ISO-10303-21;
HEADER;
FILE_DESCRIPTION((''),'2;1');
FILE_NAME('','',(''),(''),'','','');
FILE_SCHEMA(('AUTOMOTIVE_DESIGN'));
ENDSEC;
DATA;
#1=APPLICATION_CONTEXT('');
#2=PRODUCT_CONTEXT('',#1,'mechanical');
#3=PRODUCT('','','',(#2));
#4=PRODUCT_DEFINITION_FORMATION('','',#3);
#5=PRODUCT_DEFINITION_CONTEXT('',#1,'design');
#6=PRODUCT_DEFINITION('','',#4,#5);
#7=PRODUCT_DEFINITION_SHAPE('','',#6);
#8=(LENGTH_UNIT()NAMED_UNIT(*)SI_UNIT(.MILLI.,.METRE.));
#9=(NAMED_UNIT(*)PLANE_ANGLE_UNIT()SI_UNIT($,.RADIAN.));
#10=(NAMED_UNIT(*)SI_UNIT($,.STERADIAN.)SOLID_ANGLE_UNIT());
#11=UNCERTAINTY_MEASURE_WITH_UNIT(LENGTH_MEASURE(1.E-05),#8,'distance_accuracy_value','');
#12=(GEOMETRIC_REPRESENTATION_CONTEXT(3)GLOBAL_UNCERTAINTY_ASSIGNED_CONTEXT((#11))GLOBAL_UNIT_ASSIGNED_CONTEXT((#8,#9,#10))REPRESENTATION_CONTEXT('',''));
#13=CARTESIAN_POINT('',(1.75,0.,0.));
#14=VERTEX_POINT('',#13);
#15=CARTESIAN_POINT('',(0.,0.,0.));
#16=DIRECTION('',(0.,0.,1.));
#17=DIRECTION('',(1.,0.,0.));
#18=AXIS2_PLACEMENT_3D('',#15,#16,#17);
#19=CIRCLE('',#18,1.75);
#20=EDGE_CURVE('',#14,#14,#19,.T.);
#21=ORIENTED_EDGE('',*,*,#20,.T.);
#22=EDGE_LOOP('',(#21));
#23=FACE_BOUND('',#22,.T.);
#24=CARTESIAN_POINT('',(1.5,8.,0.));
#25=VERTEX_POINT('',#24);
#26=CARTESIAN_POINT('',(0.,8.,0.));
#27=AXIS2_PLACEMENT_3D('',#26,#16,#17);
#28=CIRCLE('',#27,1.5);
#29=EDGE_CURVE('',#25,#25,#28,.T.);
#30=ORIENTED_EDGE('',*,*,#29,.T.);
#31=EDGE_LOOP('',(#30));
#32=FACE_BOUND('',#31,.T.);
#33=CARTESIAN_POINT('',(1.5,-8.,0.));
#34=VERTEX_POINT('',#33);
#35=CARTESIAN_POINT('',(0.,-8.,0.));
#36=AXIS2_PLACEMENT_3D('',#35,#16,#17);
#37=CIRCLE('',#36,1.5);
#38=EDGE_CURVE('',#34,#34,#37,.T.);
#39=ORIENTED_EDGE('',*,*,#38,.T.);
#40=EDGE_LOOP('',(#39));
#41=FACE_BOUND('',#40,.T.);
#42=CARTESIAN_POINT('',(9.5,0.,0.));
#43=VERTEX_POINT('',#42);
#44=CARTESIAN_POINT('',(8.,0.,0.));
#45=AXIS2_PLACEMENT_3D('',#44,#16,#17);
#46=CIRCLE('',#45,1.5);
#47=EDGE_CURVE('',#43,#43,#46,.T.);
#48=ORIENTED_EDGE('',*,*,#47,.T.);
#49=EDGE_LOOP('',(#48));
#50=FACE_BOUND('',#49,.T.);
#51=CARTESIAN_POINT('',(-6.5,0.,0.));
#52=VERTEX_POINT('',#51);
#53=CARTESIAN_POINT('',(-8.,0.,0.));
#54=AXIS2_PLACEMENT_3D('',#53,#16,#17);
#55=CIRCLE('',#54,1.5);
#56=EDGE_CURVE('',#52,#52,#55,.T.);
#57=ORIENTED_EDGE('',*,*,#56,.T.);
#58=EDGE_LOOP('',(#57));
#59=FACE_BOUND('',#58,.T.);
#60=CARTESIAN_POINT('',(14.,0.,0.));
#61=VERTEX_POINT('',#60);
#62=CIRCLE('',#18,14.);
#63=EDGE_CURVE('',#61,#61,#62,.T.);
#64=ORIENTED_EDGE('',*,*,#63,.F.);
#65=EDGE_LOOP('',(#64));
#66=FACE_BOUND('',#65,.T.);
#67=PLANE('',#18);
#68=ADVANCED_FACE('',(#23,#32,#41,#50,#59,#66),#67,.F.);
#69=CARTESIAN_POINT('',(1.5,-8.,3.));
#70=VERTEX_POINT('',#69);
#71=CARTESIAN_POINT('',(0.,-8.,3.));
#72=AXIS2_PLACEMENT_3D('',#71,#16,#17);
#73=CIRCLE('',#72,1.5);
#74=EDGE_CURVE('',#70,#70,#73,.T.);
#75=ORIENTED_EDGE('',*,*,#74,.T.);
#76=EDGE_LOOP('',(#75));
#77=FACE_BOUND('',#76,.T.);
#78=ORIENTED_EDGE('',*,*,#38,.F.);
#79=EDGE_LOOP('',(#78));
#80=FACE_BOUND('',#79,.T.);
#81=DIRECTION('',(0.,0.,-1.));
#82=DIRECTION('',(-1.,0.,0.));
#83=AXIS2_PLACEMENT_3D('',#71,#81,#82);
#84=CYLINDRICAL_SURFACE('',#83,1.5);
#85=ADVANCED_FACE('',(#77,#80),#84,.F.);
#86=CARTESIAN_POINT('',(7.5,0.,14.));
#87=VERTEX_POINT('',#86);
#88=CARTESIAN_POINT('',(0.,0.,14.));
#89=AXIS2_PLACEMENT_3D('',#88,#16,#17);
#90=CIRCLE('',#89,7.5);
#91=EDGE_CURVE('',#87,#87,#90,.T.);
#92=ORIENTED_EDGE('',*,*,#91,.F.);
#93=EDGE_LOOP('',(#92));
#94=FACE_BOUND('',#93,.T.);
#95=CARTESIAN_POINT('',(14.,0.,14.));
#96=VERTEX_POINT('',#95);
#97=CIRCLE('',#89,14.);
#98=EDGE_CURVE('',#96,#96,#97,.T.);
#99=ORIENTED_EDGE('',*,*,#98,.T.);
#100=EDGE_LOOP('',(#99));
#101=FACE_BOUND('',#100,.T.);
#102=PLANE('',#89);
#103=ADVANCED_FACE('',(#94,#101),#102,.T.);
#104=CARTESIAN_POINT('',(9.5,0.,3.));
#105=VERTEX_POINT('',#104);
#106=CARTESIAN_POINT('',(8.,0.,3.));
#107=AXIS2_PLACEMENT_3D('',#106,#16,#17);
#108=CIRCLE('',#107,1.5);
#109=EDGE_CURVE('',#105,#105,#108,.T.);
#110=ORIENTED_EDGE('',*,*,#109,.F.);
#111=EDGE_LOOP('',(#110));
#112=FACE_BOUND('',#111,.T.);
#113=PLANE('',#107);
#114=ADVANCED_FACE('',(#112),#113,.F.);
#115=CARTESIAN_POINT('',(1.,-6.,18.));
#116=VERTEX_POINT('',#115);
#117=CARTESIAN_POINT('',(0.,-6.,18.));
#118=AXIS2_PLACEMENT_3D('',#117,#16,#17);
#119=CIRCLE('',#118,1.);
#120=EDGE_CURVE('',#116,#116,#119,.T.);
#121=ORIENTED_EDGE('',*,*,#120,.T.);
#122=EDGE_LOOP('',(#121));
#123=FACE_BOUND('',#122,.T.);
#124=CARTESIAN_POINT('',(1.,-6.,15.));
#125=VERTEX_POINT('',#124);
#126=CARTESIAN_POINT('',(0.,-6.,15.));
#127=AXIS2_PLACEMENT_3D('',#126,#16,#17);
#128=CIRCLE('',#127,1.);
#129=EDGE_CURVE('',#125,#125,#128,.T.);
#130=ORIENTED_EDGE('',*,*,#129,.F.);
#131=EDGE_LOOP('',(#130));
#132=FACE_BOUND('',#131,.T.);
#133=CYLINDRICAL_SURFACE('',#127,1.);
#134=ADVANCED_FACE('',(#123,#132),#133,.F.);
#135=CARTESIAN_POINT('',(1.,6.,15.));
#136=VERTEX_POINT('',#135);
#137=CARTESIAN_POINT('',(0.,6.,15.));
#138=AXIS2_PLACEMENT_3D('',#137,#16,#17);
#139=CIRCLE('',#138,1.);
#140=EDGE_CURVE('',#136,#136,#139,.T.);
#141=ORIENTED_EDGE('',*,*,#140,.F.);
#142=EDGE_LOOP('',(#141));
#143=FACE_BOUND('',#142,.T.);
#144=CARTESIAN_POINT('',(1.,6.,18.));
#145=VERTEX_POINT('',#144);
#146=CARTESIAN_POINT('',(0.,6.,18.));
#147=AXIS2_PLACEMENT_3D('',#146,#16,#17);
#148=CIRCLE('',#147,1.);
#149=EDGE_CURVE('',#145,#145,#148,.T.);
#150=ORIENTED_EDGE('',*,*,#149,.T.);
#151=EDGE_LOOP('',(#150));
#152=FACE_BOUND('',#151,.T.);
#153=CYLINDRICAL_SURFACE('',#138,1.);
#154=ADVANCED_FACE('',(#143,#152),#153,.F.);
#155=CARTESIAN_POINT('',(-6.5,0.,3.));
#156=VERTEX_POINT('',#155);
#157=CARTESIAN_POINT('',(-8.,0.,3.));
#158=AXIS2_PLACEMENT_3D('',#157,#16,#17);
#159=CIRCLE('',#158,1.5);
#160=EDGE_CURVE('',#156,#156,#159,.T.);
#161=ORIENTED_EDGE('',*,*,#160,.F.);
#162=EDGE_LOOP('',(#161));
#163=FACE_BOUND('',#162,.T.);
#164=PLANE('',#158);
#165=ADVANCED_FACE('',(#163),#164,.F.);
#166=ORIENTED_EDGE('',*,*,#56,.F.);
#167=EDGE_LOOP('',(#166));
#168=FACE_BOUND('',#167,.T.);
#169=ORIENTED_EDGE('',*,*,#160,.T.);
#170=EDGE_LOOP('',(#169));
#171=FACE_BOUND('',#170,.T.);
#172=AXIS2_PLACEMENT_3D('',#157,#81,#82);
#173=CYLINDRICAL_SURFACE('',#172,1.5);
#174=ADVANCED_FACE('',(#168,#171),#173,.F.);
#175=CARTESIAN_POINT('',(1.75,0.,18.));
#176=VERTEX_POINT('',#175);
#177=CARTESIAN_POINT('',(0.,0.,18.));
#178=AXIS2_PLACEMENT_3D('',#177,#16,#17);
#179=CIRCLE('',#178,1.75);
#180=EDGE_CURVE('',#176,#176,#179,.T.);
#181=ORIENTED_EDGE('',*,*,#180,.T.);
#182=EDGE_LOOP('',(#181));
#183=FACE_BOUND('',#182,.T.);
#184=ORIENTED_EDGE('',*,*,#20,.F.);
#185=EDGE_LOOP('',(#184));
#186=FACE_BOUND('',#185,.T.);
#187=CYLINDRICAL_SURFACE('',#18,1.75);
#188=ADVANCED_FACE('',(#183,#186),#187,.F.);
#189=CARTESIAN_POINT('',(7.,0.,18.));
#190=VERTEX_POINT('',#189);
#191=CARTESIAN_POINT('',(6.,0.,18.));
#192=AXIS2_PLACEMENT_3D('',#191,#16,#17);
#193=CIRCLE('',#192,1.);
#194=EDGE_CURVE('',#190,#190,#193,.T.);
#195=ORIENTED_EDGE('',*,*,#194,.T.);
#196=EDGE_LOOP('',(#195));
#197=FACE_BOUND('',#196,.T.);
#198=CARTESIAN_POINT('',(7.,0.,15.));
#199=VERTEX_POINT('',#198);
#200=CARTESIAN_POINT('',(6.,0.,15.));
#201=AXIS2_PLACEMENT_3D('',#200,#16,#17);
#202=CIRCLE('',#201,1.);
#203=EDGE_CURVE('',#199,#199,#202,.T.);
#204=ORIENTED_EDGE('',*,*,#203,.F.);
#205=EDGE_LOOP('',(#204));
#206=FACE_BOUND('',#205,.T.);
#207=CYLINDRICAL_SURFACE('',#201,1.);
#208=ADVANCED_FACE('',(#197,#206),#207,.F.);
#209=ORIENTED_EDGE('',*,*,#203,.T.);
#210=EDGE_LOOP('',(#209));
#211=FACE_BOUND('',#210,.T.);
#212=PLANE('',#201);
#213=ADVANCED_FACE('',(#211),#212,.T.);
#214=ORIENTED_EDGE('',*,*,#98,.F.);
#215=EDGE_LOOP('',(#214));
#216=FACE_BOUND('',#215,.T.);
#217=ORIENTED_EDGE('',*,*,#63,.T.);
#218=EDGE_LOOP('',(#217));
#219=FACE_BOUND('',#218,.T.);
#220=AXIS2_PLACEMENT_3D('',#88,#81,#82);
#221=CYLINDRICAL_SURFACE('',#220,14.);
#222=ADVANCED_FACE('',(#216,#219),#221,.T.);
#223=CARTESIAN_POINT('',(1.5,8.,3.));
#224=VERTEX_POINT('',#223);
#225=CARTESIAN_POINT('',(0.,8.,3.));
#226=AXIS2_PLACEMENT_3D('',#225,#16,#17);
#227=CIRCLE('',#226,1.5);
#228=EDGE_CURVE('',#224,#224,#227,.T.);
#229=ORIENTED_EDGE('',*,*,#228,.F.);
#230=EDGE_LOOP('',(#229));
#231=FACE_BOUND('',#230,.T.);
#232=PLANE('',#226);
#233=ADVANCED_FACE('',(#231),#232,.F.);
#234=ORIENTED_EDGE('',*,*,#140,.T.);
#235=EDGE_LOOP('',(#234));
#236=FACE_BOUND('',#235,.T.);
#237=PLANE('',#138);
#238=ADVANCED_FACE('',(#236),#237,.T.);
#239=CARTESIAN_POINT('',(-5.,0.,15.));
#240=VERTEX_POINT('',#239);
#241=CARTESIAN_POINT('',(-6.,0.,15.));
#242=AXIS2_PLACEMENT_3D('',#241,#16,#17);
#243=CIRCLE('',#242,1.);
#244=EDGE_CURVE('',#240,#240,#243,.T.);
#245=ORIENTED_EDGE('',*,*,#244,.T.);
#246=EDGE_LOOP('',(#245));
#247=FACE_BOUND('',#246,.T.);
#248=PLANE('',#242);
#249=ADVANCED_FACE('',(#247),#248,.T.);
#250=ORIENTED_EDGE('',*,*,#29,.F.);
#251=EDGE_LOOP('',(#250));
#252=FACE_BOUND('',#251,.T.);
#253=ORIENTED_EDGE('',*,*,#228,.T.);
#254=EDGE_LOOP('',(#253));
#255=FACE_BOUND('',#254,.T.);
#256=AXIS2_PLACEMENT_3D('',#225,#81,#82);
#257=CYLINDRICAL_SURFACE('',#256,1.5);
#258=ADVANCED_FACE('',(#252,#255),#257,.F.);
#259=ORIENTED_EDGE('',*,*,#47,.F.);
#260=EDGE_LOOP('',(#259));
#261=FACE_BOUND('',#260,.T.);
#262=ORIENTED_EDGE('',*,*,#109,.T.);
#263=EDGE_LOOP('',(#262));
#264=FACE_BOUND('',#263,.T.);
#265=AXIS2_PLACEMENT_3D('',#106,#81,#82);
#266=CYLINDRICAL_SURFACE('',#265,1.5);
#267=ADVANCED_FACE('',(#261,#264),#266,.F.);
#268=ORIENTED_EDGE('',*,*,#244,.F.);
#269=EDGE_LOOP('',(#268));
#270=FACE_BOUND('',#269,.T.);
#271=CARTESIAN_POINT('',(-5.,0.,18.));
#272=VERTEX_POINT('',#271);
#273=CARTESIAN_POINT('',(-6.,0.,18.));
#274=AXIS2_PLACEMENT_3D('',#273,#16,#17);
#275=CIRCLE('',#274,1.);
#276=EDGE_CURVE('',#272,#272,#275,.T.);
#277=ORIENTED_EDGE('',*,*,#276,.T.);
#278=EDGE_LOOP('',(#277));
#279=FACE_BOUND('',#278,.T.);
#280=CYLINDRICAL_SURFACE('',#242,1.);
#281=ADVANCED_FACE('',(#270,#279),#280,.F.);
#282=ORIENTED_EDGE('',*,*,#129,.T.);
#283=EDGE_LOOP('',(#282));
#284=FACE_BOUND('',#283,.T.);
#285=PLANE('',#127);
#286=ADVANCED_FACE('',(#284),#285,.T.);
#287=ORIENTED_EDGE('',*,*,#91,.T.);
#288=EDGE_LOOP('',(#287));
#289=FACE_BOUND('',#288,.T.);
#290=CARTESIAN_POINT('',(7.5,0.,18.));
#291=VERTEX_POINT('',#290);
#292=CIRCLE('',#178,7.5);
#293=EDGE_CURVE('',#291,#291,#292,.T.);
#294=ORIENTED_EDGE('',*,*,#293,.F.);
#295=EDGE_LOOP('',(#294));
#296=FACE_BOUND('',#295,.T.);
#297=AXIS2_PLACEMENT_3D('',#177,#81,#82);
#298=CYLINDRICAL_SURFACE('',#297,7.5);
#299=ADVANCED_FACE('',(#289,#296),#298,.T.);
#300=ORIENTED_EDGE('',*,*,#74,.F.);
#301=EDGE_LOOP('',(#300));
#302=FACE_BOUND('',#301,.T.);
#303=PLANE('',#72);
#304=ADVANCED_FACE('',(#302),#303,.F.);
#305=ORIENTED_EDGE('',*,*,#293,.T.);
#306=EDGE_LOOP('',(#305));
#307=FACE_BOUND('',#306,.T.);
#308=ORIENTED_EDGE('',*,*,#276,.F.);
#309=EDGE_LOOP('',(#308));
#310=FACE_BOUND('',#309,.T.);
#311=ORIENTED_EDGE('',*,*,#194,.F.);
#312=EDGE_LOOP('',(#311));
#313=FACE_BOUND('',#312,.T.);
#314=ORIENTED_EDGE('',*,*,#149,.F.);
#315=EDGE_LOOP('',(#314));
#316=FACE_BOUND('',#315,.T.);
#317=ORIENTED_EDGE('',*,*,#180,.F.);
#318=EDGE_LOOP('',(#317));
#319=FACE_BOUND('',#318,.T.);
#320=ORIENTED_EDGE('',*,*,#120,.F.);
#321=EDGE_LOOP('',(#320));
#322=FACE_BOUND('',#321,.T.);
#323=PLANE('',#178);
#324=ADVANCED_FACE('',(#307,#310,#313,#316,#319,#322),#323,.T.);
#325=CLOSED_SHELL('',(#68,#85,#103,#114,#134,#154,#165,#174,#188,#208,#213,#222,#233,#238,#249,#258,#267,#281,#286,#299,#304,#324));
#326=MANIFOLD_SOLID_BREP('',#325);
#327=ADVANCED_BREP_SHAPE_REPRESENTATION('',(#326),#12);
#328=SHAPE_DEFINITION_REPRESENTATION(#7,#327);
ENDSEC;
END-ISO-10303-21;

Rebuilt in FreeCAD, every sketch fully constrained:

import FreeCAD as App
import Part
import Sketcher

V = App.Vector

doc = App.newDocument("Part")
body = doc.addObject("PartDesign::Body", "Body")

# Sketch on XY plane
sketch1 = body.newObject("Sketcher::SketchObject", "Sketch")
sketch1.AttachmentSupport = (doc.getObject("XY_Plane"), [""])
sketch1.MapMode = "FlatFace"
sketch1.addGeometry(Part.Circle(V(0, 0, 0), V(0, 0, 1), 14), False)
sketch1.addConstraint([
    Sketcher.Constraint("Coincident", 0, 3, -1, 1),
    Sketcher.Constraint("Diameter", 0, 28.0),
])
pad1 = body.newObject("PartDesign::Pad", "Pad")
pad1.Profile = sketch1
pad1.Length = 14

# Sketch on XY plane
sketch2 = body.newObject("Sketcher::SketchObject", "Sketch001")
sketch2.AttachmentSupport = (doc.getObject("XY_Plane"), [""])
sketch2.MapMode = "FlatFace"
sketch2.AttachmentOffset = App.Placement(V(0, 0, 14), App.Rotation())
sketch2.addGeometry(Part.Circle(V(0, 0, 0), V(0, 0, 1), 8), False)
sketch2.addConstraint([
    Sketcher.Constraint("Coincident", 0, 3, -1, 1),
    Sketcher.Constraint("Diameter", 0, 15.0),
])
pad2 = body.newObject("PartDesign::Pad", "Pad001")
pad2.Profile = sketch2
pad2.Length = 4

# Sketch on XY plane
sketch3 = body.newObject("Sketcher::SketchObject", "Sketch002")
sketch3.AttachmentSupport = (doc.getObject("XY_Plane"), [""])
sketch3.MapMode = "FlatFace"
sketch3.AttachmentOffset = App.Placement(V(0, 0, 18), App.Rotation())
sketch3.addGeometry(Part.Circle(V(0, 0, 0), V(0, 0, 1), 1.8), False)
sketch3.addConstraint([
    Sketcher.Constraint("Coincident", 0, 3, -1, 1),
    Sketcher.Constraint("Diameter", 0, 3.5),
])
pocket1 = body.newObject("PartDesign::Pocket", "Pocket")
pocket1.Profile = sketch3
pocket1.Type = "ThroughAll"

# Sketch on XY plane
sketch4 = body.newObject("Sketcher::SketchObject", "Sketch003")
sketch4.AttachmentSupport = (doc.getObject("XY_Plane"), [""])
sketch4.MapMode = "FlatFace"
sketch4.AttachmentOffset = App.Placement(V(0, 0, 18), App.Rotation())
sketch4.addGeometry([
    Part.Circle(V(0, -6, 0), V(0, 0, 1), 1),
    Part.Circle(V(-6, 0, 0), V(0, 0, 1), 1),
    Part.Circle(V(0, 6, 0), V(0, 0, 1), 1),
    Part.Circle(V(6, 0, 0), V(0, 0, 1), 1),
], False)
sketch4.addConstraint([
    Sketcher.Constraint("Equal", 0, 1),
    Sketcher.Constraint("Equal", 1, 2),
    Sketcher.Constraint("Equal", 2, 3),
    Sketcher.Constraint("Symmetric", 0, 3, 2, 3, -1, 1),
    Sketcher.Constraint("Symmetric", 1, 3, 3, 3, -1, 1),
    Sketcher.Constraint("PointOnObject", 0, 3, -2),
    Sketcher.Constraint("PointOnObject", 1, 3, -1),
    Sketcher.Constraint("Diameter", 0, 2.0),
    Sketcher.Constraint("DistanceY", 0, 3, -1, 1, 6.0),
    Sketcher.Constraint("DistanceX", 1, 3, -1, 1, 6.0),
])
pocket2 = body.newObject("PartDesign::Pocket", "Pocket001")
pocket2.Profile = sketch4
pocket2.Length = 3

# Sketch on XY plane
sketch5 = body.newObject("Sketcher::SketchObject", "Sketch004")
sketch5.AttachmentSupport = (doc.getObject("XY_Plane"), [""])
sketch5.MapMode = "FlatFace"
sketch5.addGeometry([
    Part.Circle(V(0, 8, 0), V(0, 0, 1), 1.5),
    Part.Circle(V(-8, 0, 0), V(0, 0, 1), 1.5),
    Part.Circle(V(0, -8, 0), V(0, 0, 1), 1.5),
    Part.Circle(V(8, 0, 0), V(0, 0, 1), 1.5),
], False)
sketch5.addConstraint([
    Sketcher.Constraint("Equal", 0, 1),
    Sketcher.Constraint("Equal", 1, 2),
    Sketcher.Constraint("Equal", 2, 3),
    Sketcher.Constraint("Symmetric", 0, 3, 2, 3, -1, 1),
    Sketcher.Constraint("Symmetric", 1, 3, 3, 3, -1, 1),
    Sketcher.Constraint("PointOnObject", 0, 3, -2),
    Sketcher.Constraint("PointOnObject", 1, 3, -1),
    Sketcher.Constraint("Diameter", 0, 3.0),
    Sketcher.Constraint("DistanceY", -1, 1, 0, 3, 8.0),
    Sketcher.Constraint("DistanceX", 1, 3, -1, 1, 8.0),
])
pocket3 = body.newObject("PartDesign::Pocket", "Pocket002")
pocket3.Profile = sketch5
pocket3.Length = 3
pocket3.Reversed = True

doc.recompute()
